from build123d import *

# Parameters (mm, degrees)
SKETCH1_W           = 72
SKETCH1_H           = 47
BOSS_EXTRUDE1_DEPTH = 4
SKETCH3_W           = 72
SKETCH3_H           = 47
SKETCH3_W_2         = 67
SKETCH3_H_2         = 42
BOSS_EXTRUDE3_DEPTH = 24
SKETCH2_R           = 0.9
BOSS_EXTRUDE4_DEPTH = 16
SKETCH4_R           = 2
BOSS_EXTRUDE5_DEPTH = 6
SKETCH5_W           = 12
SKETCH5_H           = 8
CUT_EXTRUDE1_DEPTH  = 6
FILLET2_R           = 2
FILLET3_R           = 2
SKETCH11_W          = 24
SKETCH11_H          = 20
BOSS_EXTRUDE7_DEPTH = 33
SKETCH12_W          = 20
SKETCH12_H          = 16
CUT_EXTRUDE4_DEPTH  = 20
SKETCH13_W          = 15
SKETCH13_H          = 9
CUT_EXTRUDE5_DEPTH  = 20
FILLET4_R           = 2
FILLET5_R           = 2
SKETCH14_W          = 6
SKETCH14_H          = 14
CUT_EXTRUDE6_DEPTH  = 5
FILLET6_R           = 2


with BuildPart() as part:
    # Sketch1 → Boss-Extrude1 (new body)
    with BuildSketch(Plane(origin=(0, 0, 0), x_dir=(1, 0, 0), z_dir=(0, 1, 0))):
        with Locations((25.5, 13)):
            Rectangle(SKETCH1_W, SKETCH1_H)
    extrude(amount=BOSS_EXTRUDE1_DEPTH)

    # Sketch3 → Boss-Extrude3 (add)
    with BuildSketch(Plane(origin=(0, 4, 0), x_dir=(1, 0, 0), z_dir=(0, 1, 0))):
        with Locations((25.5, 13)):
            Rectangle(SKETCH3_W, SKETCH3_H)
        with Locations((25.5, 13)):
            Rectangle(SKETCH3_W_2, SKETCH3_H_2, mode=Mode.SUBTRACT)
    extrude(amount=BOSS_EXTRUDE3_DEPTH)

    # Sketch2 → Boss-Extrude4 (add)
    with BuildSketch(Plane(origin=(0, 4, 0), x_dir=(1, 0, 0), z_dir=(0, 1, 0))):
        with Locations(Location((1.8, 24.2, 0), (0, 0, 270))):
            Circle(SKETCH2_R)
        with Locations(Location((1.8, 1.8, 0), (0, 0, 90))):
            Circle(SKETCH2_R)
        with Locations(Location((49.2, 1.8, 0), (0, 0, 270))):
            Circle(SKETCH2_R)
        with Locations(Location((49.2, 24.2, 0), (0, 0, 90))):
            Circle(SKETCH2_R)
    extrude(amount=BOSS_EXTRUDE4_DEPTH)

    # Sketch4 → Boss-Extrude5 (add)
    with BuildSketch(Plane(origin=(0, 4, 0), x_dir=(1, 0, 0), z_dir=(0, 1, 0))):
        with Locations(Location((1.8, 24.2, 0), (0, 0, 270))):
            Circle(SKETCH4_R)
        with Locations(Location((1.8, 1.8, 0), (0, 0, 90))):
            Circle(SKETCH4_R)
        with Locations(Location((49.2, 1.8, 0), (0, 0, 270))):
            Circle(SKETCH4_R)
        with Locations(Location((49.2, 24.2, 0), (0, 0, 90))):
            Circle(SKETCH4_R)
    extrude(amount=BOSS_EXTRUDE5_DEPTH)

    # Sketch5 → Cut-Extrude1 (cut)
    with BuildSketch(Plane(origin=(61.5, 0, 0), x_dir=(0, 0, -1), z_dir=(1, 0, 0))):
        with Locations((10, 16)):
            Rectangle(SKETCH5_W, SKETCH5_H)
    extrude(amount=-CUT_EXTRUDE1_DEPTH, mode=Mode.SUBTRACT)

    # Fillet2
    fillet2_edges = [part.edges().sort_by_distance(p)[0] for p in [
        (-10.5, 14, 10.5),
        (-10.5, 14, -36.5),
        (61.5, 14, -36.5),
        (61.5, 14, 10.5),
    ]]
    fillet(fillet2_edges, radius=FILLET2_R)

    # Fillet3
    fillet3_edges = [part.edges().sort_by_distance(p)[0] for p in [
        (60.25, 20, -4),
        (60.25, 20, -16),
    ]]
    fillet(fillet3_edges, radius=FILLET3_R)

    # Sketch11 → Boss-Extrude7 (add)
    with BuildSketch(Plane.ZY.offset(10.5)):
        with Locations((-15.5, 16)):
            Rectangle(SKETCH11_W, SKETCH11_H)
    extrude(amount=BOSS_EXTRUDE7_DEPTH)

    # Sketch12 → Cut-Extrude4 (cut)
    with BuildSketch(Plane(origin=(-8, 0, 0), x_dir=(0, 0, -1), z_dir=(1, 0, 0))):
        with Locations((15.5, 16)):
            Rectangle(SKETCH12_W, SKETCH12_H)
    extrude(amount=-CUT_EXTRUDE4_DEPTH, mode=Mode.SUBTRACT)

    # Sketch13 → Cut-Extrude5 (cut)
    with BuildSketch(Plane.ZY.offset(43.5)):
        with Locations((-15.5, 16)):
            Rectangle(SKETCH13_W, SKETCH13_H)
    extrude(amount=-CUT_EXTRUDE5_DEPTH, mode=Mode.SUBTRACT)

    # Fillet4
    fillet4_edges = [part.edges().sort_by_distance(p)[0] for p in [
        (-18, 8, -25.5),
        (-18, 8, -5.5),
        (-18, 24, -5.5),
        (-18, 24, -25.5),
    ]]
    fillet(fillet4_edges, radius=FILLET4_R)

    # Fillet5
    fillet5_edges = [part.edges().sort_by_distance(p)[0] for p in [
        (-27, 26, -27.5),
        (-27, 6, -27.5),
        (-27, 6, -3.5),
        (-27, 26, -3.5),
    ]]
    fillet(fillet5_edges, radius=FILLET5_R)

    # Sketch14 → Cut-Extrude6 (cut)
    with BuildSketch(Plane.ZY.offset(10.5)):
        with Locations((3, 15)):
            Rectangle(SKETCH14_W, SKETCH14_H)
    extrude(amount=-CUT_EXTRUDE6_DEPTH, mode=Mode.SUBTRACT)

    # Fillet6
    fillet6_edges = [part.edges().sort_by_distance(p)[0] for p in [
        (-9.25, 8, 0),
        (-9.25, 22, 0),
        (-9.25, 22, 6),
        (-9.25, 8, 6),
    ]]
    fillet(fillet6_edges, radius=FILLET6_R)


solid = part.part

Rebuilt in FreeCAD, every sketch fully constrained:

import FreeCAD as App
import Part
import Sketcher
from FreeCAD import Vector


def edges_at(feature, points):
    """Names of the edges that pass closest to the given points."""
    edges = feature.Shape.Edges
    near = lambda p: min(range(len(edges)), key=lambda i: edges[i].distToShape(Part.Vertex(*p))[0])
    return sorted({f"Edge{near(p) + 1}" for p in points})


def add_polygon(sketch, points):
    """Adds a closed chain of lines whose ends are joined by coincident constraints."""
    first, n = sketch.GeometryCount, len(points)
    for a, b in zip(points, points[1:] + points[:1]):
        sketch.addGeometry(Part.LineSegment(App.Vector(*a, 0), App.Vector(*b, 0)), False)
    for i in range(n):
        sketch.addConstraint(Sketcher.Constraint("Coincident", first + i, 2, first + (i + 1) % n, 1))

doc = App.newDocument("Part")
body = doc.addObject("PartDesign::Body", "Body")

sketch1 = body.newObject("Sketcher::SketchObject", "Sketch")
sketch1.AttachmentSupport = (doc.getObject("XZ_Plane"), [""])
sketch1.MapMode = "FlatFace"
add_polygon(sketch1, [(-10.5, -36.5), (-10.5, 10.5), (61.5, 10.5), (61.5, -36.5)])
sketch1.addConstraint([
    Sketcher.Constraint("Vertical", 0),
    Sketcher.Constraint("Horizontal", 1),
    Sketcher.Constraint("Vertical", 2),
    Sketcher.Constraint("Horizontal", 3),
    Sketcher.Constraint("DistanceX", 1, 1, 1, 2, 72.0),
    Sketcher.Constraint("DistanceY", 0, 1, 0, 2, 47.0),
    Sketcher.Constraint("DistanceX", 0, 2, -1, 1, 10.5),
    Sketcher.Constraint("DistanceY", -1, 1, 0, 2, 10.5),
])
pad1 = body.newObject("PartDesign::Pad", "Pad")
pad1.Profile = sketch1
pad1.Length = 4
pad1.Reversed = True

sketch2 = body.newObject("Sketcher::SketchObject", "Sketch001")
sketch2.AttachmentSupport = (doc.getObject("XZ_Plane"), [""])
sketch2.MapMode = "FlatFace"
sketch2.AttachmentOffset = App.Placement(Vector(0, 0, -4), App.Rotation())
add_polygon(sketch2, [(-10.5, -36.5), (-10.5, 10.5), (61.5, 10.5), (61.5, -36.5)])
add_polygon(sketch2, [(59, 8), (-8, 8), (-8, -34), (59, -34)])
sketch2.addConstraint([
    Sketcher.Constraint("Vertical", 0),
    Sketcher.Constraint("Horizontal", 1),
    Sketcher.Constraint("Vertical", 2),
    Sketcher.Constraint("Horizontal", 3),
    Sketcher.Constraint("Horizontal", 4),
    Sketcher.Constraint("Vertical", 5),
    Sketcher.Constraint("Horizontal", 6),
    Sketcher.Constraint("Vertical", 7),
    Sketcher.Constraint("DistanceX", 1, 1, 1, 2, 72.0),
    Sketcher.Constraint("DistanceX", 4, 2, 4, 1, 67.0),
    Sketcher.Constraint("DistanceY", 0, 1, 0, 2, 47.0),
    Sketcher.Constraint("DistanceY", 5, 2, 5, 1, 42.0),
    Sketcher.Constraint("DistanceX", 4, 2, -1, 1, 8.0),
    Sketcher.Constraint("DistanceY", -1, 1, 4, 2, 8.0),
    Sketcher.Constraint("DistanceX", 0, 2, -1, 1, 10.5),
    Sketcher.Constraint("DistanceY", -1, 1, 0, 2, 10.5),
])
pad2 = body.newObject("PartDesign::Pad", "Pad001")
pad2.Profile = sketch2
pad2.Length = 24
pad2.Reversed = True

sketch3 = body.newObject("Sketcher::SketchObject", "Sketch002")
sketch3.AttachmentSupport = (doc.getObject("XZ_Plane"), [""])
sketch3.MapMode = "FlatFace"
sketch3.AttachmentOffset = App.Placement(Vector(0, 0, -4), App.Rotation())
sketch3.addGeometry([
    Part.Circle(Vector(1.8, -24.2, 0), Vector(0, 0, 1), 0.9),
    Part.Circle(Vector(1.8, -1.8, 0), Vector(0, 0, 1), 0.9),
    Part.Circle(Vector(49.2, -1.8, 0), Vector(0, 0, 1), 0.9),
    Part.Circle(Vector(49.2, -24.2, 0), Vector(0, 0, 1), 0.9),
], False)
sketch3.addConstraint([
    Sketcher.Constraint("Equal", 0, 1),
    Sketcher.Constraint("Equal", 1, 2),
    Sketcher.Constraint("Equal", 2, 3),
    Sketcher.Constraint("Horizontal", 1, 3, 2, 3),
    Sketcher.Constraint("Horizontal", 0, 3, 3, 3),
    Sketcher.Constraint("Vertical", 0, 3, 1, 3),
    Sketcher.Constraint("Vertical", 2, 3, 3, 3),
    Sketcher.Constraint("Diameter", 0, 1.8),
    Sketcher.Constraint("DistanceX", -1, 1, 0, 3, 1.8),
    Sketcher.Constraint("DistanceY", 0, 3, -1, 1, 24.2),
    Sketcher.Constraint("DistanceY", 1, 3, -1, 1, 1.8),
    Sketcher.Constraint("DistanceX", -1, 1, 2, 3, 49.2),
])
pad3 = body.newObject("PartDesign::Pad", "Pad002")
pad3.Profile = sketch3
pad3.Length = 16
pad3.Reversed = True

sketch4 = body.newObject("Sketcher::SketchObject", "Sketch003")
sketch4.AttachmentSupport = (doc.getObject("XZ_Plane"), [""])
sketch4.MapMode = "FlatFace"
sketch4.AttachmentOffset = App.Placement(Vector(0, 0, -4), App.Rotation())
sketch4.addGeometry([
    Part.Circle(Vector(1.8, -24.2, 0), Vector(0, 0, 1), 2),
    Part.Circle(Vector(1.8, -1.8, 0), Vector(0, 0, 1), 2),
    Part.Circle(Vector(49.2, -1.8, 0), Vector(0, 0, 1), 2),
    Part.Circle(Vector(49.2, -24.2, 0), Vector(0, 0, 1), 2),
], False)
sketch4.addConstraint([
    Sketcher.Constraint("Equal", 0, 1),
    Sketcher.Constraint("Equal", 1, 2),
    Sketcher.Constraint("Equal", 2, 3),
    Sketcher.Constraint("Horizontal", 1, 3, 2, 3),
    Sketcher.Constraint("Horizontal", 0, 3, 3, 3),
    Sketcher.Constraint("Vertical", 0, 3, 1, 3),
    Sketcher.Constraint("Vertical", 2, 3, 3, 3),
    Sketcher.Constraint("Diameter", 0, 4.0),
    Sketcher.Constraint("DistanceX", -1, 1, 0, 3, 1.8),
    Sketcher.Constraint("DistanceY", 0, 3, -1, 1, 24.2),
    Sketcher.Constraint("DistanceY", 1, 3, -1, 1, 1.8),
    Sketcher.Constraint("DistanceX", -1, 1, 2, 3, 49.2),
])
pad4 = body.newObject("PartDesign::Pad", "Pad003")
pad4.Profile = sketch4
pad4.Length = 6
pad4.Reversed = True

sketch5 = body.newObject("Sketcher::SketchObject", "Sketch004")
sketch5.AttachmentSupport = (doc.getObject("YZ_Plane"), [""])
sketch5.MapMode = "FlatFace"
sketch5.AttachmentOffset = App.Placement(Vector(0, 0, 61.5), App.Rotation())
add_polygon(sketch5, [(20, -4), (12, -4), (12, -16), (20, -16)])
sketch5.addConstraint([
    Sketcher.Constraint("Horizontal", 0),
    Sketcher.Constraint("Vertical", 1),
    Sketcher.Constraint("Horizontal", 2),
    Sketcher.Constraint("Vertical", 3),
    Sketcher.Constraint("DistanceX", 0, 2, 0, 1, 8.0),
    Sketcher.Constraint("DistanceY", 1, 2, 1, 1, 12.0),
    Sketcher.Constraint("DistanceX", -1, 1, 0, 2, 12.0),
    Sketcher.Constraint("DistanceY", 0, 2, -1, 1, 4.0),
])
pocket1 = body.newObject("PartDesign::Pocket", "Pocket")
pocket1.Profile = sketch5
pocket1.Length = 6
doc.recompute()

fillet = body.newObject("PartDesign::Fillet", "Fillet")
fillet.Base = (pocket1, edges_at(pocket1, [
    (-10.5, 14, 10.5),
    (-10.5, 14, -36.5),
    (61.5, 14, -36.5),
    (61.5, 14, 10.5),
]))
fillet.Radius = 2
doc.recompute()

fillet2 = body.newObject("PartDesign::Fillet", "Fillet001")
fillet2.Base = (fillet, edges_at(fillet, [(60.25, 20, -4), (60.25, 20, -16)]))
fillet2.Radius = 2

sketch6 = body.newObject("Sketcher::SketchObject", "Sketch005")
sketch6.AttachmentSupport = (doc.getObject("YZ_Plane"), [""])
sketch6.MapMode = "FlatFace"
sketch6.AttachmentOffset = App.Placement(Vector(0, 0, -10.5), App.Rotation())
add_polygon(sketch6, [(26, -27.5), (6, -27.5), (6, -3.5), (26, -3.5)])
sketch6.addConstraint([
    Sketcher.Constraint("Horizontal", 0),
    Sketcher.Constraint("Vertical", 1),
    Sketcher.Constraint("Horizontal", 2),
    Sketcher.Constraint("Vertical", 3),
    Sketcher.Constraint("DistanceX", 0, 2, 0, 1, 20.0),
    Sketcher.Constraint("DistanceY", 1, 1, 1, 2, 24.0),
    Sketcher.Constraint("DistanceX", -1, 1, 0, 2, 6.0),
    Sketcher.Constraint("DistanceY", 0, 2, -1, 1, 27.5),
])
pad5 = body.newObject("PartDesign::Pad", "Pad004")
pad5.Profile = sketch6
pad5.Length = 33
pad5.Reversed = True

sketch7 = body.newObject("Sketcher::SketchObject", "Sketch006")
sketch7.AttachmentSupport = (doc.getObject("YZ_Plane"), [""])
sketch7.MapMode = "FlatFace"
sketch7.AttachmentOffset = App.Placement(Vector(0, 0, -8), App.Rotation())
add_polygon(sketch7, [(24, -5.5), (8, -5.5), (8, -25.5), (24, -25.5)])
sketch7.addConstraint([
    Sketcher.Constraint("Horizontal", 0),
    Sketcher.Constraint("Vertical", 1),
    Sketcher.Constraint("Horizontal", 2),
    Sketcher.Constraint("Vertical", 3),
    Sketcher.Constraint("DistanceX", 0, 2, 0, 1, 16.0),
    Sketcher.Constraint("DistanceY", 1, 2, 1, 1, 20.0),
    Sketcher.Constraint("DistanceX", -1, 1, 0, 2, 8.0),
    Sketcher.Constraint("DistanceY", 0, 2, -1, 1, 5.5),
])
pocket2 = body.newObject("PartDesign::Pocket", "Pocket001")
pocket2.Profile = sketch7
pocket2.Length = 20

sketch8 = body.newObject("Sketcher::SketchObject", "Sketch007")
sketch8.AttachmentSupport = (doc.getObject("YZ_Plane"), [""])
sketch8.MapMode = "FlatFace"
sketch8.AttachmentOffset = App.Placement(Vector(0, 0, -43.5), App.Rotation())
add_polygon(sketch8, [(20.5, -23), (11.5, -23), (11.5, -8), (20.5, -8)])
sketch8.addConstraint([
    Sketcher.Constraint("Horizontal", 0),
    Sketcher.Constraint("Vertical", 1),
    Sketcher.Constraint("Horizontal", 2),
    Sketcher.Constraint("Vertical", 3),
    Sketcher.Constraint("DistanceX", 0, 2, 0, 1, 9.0),
    Sketcher.Constraint("DistanceY", 1, 1, 1, 2, 15.0),
    Sketcher.Constraint("DistanceY", 0, 2, -1, 1, 23.0),
    Sketcher.Constraint("DistanceX", -1, 1, 0, 2, 11.5),
])
pocket3 = body.newObject("PartDesign::Pocket", "Pocket002")
pocket3.Profile = sketch8
pocket3.Length = 20
pocket3.Reversed = True
doc.recompute()

fillet3 = body.newObject("PartDesign::Fillet", "Fillet002")
fillet3.Base = (pocket3, edges_at(pocket3, [
    (-18, 8, -25.5),
    (-18, 8, -5.5),
    (-18, 24, -5.5),
    (-18, 24, -25.5),
]))
fillet3.Radius = 2
doc.recompute()

fillet4 = body.newObject("PartDesign::Fillet", "Fillet003")
fillet4.Base = (fillet3, edges_at(fillet3, [
    (-27, 26, -27.5),
    (-27, 6, -27.5),
    (-27, 6, -3.5),
    (-27, 26, -3.5),
]))
fillet4.Radius = 2

sketch9 = body.newObject("Sketcher::SketchObject", "Sketch008")
sketch9.AttachmentSupport = (doc.getObject("YZ_Plane"), [""])
sketch9.MapMode = "FlatFace"
sketch9.AttachmentOffset = App.Placement(Vector(0, 0, -10.5), App.Rotation())
add_polygon(sketch9, [(22, 0), (8, 0), (8, 6), (22, 6)])
sketch9.addConstraint([
    Sketcher.Constraint("Horizontal", 0),
    Sketcher.Constraint("Vertical", 1),
    Sketcher.Constraint("Horizontal", 2),
    Sketcher.Constraint("Vertical", 3),
    Sketcher.Constraint("PointOnObject", 0, 2, -1),
    Sketcher.Constraint("DistanceX", 0, 2, 0, 1, 14.0),
    Sketcher.Constraint("DistanceY", 1, 1, 1, 2, 6.0),
    Sketcher.Constraint("DistanceX", -1, 1, 0, 2, 8.0),
])
pocket4 = body.newObject("PartDesign::Pocket", "Pocket003")
pocket4.Profile = sketch9
pocket4.Length = 5
pocket4.Reversed = True
doc.recompute()

fillet5 = body.newObject("PartDesign::Fillet", "Fillet004")
fillet5.Base = (pocket4, edges_at(pocket4, [
    (-9.25, 8, 0),
    (-9.25, 22, 0),
    (-9.25, 22, 6),
    (-9.25, 8, 6),
]))
fillet5.Radius = 2

doc.recompute()
